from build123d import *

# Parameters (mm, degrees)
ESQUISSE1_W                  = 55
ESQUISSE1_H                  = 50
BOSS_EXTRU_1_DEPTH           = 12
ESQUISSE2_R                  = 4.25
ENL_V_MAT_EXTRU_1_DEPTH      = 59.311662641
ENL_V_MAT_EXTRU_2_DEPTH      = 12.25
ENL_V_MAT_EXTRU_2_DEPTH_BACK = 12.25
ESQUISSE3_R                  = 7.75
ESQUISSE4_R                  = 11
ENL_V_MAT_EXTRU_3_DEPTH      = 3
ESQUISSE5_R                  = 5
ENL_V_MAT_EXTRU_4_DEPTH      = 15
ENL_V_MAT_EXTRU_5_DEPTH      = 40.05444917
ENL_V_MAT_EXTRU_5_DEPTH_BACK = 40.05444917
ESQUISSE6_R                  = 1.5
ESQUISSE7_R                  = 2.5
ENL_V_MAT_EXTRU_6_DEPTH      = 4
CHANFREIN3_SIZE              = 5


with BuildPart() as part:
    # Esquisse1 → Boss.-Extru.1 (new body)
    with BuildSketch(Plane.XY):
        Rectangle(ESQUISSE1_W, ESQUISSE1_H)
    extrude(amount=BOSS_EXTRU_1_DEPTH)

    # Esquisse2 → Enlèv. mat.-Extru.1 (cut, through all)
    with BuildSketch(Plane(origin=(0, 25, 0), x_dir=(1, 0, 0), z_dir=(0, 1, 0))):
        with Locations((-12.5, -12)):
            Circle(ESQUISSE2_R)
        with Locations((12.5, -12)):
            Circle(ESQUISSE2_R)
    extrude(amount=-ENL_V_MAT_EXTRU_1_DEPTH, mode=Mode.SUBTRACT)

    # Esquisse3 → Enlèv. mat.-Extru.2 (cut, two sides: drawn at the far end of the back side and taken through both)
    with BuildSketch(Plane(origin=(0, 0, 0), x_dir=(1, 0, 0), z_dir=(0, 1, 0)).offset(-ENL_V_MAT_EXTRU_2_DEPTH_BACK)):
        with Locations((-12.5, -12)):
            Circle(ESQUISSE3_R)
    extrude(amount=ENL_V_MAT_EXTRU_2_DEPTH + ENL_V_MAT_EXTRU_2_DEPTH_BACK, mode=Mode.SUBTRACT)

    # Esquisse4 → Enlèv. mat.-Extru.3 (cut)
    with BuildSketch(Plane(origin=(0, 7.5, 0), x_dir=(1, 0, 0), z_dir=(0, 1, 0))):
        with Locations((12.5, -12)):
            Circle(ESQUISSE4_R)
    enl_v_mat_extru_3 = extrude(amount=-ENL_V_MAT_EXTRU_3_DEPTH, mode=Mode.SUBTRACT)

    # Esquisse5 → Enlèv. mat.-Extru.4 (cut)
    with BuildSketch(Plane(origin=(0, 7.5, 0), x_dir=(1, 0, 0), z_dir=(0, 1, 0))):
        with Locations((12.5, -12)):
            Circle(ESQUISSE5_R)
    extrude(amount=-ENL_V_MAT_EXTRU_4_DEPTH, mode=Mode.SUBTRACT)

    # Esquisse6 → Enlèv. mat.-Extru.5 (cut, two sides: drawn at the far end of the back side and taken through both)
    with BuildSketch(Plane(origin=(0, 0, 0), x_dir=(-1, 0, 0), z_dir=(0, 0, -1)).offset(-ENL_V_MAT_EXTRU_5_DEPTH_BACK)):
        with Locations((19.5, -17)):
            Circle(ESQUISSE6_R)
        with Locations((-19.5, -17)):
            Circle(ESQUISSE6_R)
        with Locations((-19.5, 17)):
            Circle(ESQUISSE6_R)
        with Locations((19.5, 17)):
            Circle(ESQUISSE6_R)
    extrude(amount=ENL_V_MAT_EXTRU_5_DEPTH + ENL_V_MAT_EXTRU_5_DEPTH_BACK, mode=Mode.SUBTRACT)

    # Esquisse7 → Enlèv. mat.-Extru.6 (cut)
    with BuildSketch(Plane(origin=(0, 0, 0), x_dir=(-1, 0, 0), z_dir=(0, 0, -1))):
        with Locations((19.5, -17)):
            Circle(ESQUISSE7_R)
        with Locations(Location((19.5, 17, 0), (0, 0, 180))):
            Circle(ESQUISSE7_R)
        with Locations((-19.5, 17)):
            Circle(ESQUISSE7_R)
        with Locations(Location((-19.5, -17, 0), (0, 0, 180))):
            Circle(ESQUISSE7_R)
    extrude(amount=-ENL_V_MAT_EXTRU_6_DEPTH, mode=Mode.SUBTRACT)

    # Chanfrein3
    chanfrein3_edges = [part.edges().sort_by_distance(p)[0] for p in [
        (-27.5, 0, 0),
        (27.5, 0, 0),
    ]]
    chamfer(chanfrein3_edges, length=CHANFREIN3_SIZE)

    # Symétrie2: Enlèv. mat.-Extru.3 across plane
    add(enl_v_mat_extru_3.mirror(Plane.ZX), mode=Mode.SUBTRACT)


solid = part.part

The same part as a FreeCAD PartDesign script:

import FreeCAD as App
import Part
import Sketcher
from FreeCAD import Vector
Q = App.Units.Quantity


def edges_at(feature, points):
    """Names of the edges that pass closest to the given points."""
    edges = feature.Shape.Edges
    near = lambda p: min(range(len(edges)), key=lambda i: edges[i].distToShape(Part.Vertex(*p))[0])
    return sorted({f"Edge{near(p) + 1}" for p in points})

doc = App.newDocument("Part")
params = doc.addObject("Spreadsheet::Sheet", "Params")
for row, (alias, value) in enumerate([
    ("sketch1_width", "55 mm"),
    ("sketch1_height", "50 mm"),
    ("pad1_length", "12 mm"),
    ("sketch2_diameter", "8.5 mm"),
    ("sketch3_diameter", "15.5 mm"),
    ("pocket2_length", "12.25 mm"),
    ("pocket2_length2", "12.25 mm"),
    ("sketch4_diameter", "22 mm"),
    ("pocket3_length", "3 mm"),
    ("sketch5_diameter", "10 mm"),
    ("pocket4_length", "15 mm"),
    ("sketch6_diameter", "3 mm"),
    ("sketch7_diameter", "5 mm"),
    ("pocket6_length", "4 mm"),
    ("chamfer_size", "5 mm"),
], start=1):
    params.set(f"A{row}", alias)
    params.set(f"B{row}", "=" + value)
    params.setAlias(f"B{row}", alias)

body = doc.addObject("PartDesign::Body", "Body")

# Sketch on XY plane
sketch1 = body.newObject("Sketcher::SketchObject", "Sketch")
sketch1.AttachmentSupport = (doc.getObject("XY_Plane"), [""])
sketch1.MapMode = "FlatFace"
sketch1.addGeometry(Part.LineSegment(Vector(-28, 25, 0), Vector(-28, -25, 0)), False)
sketch1.addGeometry(Part.LineSegment(Vector(-28, -25, 0), Vector(28, -25, 0)), False)
sketch1.addGeometry(Part.LineSegment(Vector(28, -25, 0), Vector(28, 25, 0)), False)
sketch1.addGeometry(Part.LineSegment(Vector(28, 25, 0), Vector(-28, 25, 0)), False)
sketch1.addConstraint(Sketcher.Constraint("Coincident", 0, 2, 1, 1))
sketch1.addConstraint(Sketcher.Constraint("Coincident", 1, 2, 2, 1))
sketch1.addConstraint(Sketcher.Constraint("Coincident", 2, 2, 3, 1))
sketch1.addConstraint(Sketcher.Constraint("Coincident", 3, 2, 0, 1))
sketch1.addConstraint(Sketcher.Constraint("Vertical", 0))
sketch1.addConstraint(Sketcher.Constraint("Horizontal", 1))
sketch1.addConstraint(Sketcher.Constraint("Vertical", 2))
sketch1.addConstraint(Sketcher.Constraint("Horizontal", 3))
sketch1.addConstraint(Sketcher.Constraint("Symmetric", 0, 2, 2, 2, -1, 1))
sketch1.addConstraint(Sketcher.Constraint("DistanceX", 1, 1, 1, 2, Q("55 mm")))
sketch1.addConstraint(Sketcher.Constraint("DistanceY", 0, 2, 0, 1, Q("50 mm")))
sketch1.setExpression("Constraints[9]", "Params.sketch1_width")
sketch1.setExpression("Constraints[10]", "Params.sketch1_height")
pad1 = body.newObject("PartDesign::Pad", "Pad")
pad1.Profile = sketch1
pad1.setExpression("Length", "Params.pad1_length")

# Sketch on XZ plane
sketch2 = body.newObject("Sketcher::SketchObject", "Sketch001")
sketch2.AttachmentSupport = (doc.getObject("XZ_Plane"), [""])
sketch2.MapMode = "FlatFace"
sketch2.AttachmentOffset = App.Placement(Vector(0, 0, -25), App.Rotation())
sketch2.addGeometry(Part.Circle(Vector(-12.5, 12, 0), Vector(0, 0, 1), 4.2), False)
sketch2.addGeometry(Part.Circle(Vector(12.5, 12, 0), Vector(0, 0, 1), 4.2), False)
sketch2.addConstraint(Sketcher.Constraint("Equal", 0, 1))
sketch2.addConstraint(Sketcher.Constraint("Symmetric", 0, 3, 1, 3, -2))
sketch2.addConstraint(Sketcher.Constraint("Diameter", 0, Q("8.5 mm")))
sketch2.addConstraint(Sketcher.Constraint("DistanceY", -1, 1, 0, 3, Q("12 mm")))
sketch2.addConstraint(Sketcher.Constraint("DistanceX", 0, 3, 1, 3, Q("25 mm")))
sketch2.setExpression("Constraints[2]", "Params.sketch2_diameter")
pocket1 = body.newObject("PartDesign::Pocket", "Pocket")
pocket1.Profile = sketch2
pocket1.Type = "ThroughAll"
pocket1.Reversed = True

# Sketch on XZ plane
sketch3 = body.newObject("Sketcher::SketchObject", "Sketch002")
sketch3.AttachmentSupport = (doc.getObject("XZ_Plane"), [""])
sketch3.MapMode = "FlatFace"
sketch3.addGeometry(Part.Circle(Vector(-12, 12, 0), Vector(0, 0, 1), 8), False)
sketch3.addConstraint(Sketcher.Constraint("Diameter", 0, Q("15.5 mm")))
sketch3.addConstraint(Sketcher.Constraint("DistanceY", -1, 1, 0, 3, Q("12 mm")))
sketch3.addConstraint(Sketcher.Constraint("DistanceX", 0, 3, -1, 1, Q("12.5 mm")))
sketch3.setExpression("Constraints[0]", "Params.sketch3_diameter")
pocket2 = body.newObject("PartDesign::Pocket", "Pocket001")
pocket2.Profile = sketch3
pocket2.Type = "TwoLengths"
pocket2.setExpression("Length", "Params.pocket2_length")
pocket2.setExpression("Length2", "Params.pocket2_length2")

# Sketch on XZ plane
sketch4 = body.newObject("Sketcher::SketchObject", "Sketch003")
sketch4.AttachmentSupport = (doc.getObject("XZ_Plane"), [""])
sketch4.MapMode = "FlatFace"
sketch4.AttachmentOffset = App.Placement(Vector(0, 0, -7.5), App.Rotation())
sketch4.addGeometry(Part.Circle(Vector(12, 12, 0), Vector(0, 0, 1), 11), False)
sketch4.addConstraint(Sketcher.Constraint("Diameter", 0, Q("22 mm")))
sketch4.addConstraint(Sketcher.Constraint("DistanceY", -1, 1, 0, 3, Q("12 mm")))
sketch4.addConstraint(Sketcher.Constraint("DistanceX", -1, 1, 0, 3, Q("12.5 mm")))
sketch4.setExpression("Constraints[0]", "Params.sketch4_diameter")
pocket3 = body.newObject("PartDesign::Pocket", "Pocket002")
pocket3.Profile = sketch4
pocket3.setExpression("Length", "Params.pocket3_length")
pocket3.Reversed = True

# Sketch on XZ plane
sketch5 = body.newObject("Sketcher::SketchObject", "Sketch004")
sketch5.AttachmentSupport = (doc.getObject("XZ_Plane"), [""])
sketch5.MapMode = "FlatFace"
sketch5.AttachmentOffset = App.Placement(Vector(0, 0, -7.5), App.Rotation())
sketch5.addGeometry(Part.Circle(Vector(12, 12, 0), Vector(0, 0, 1), 5), False)
sketch5.addConstraint(Sketcher.Constraint("Diameter", 0, Q("10 mm")))
sketch5.addConstraint(Sketcher.Constraint("DistanceY", -1, 1, 0, 3, Q("12 mm")))
sketch5.addConstraint(Sketcher.Constraint("DistanceX", -1, 1, 0, 3, Q("12.5 mm")))
sketch5.setExpression("Constraints[0]", "Params.sketch5_diameter")
pocket4 = body.newObject("PartDesign::Pocket", "Pocket003")
pocket4.Profile = sketch5
pocket4.setExpression("Length", "Params.pocket4_length")
pocket4.Reversed = True

# Sketch on XY plane
sketch6 = body.newObject("Sketcher::SketchObject", "Sketch005")
sketch6.AttachmentSupport = (doc.getObject("XY_Plane"), [""])
sketch6.MapMode = "FlatFace"
sketch6.addGeometry(Part.Circle(Vector(-19.5, -17, 0), Vector(0, 0, 1), 1.5), False)
sketch6.addGeometry(Part.Circle(Vector(19.5, -17, 0), Vector(0, 0, 1), 1.5), False)
sketch6.addGeometry(Part.Circle(Vector(19.5, 17, 0), Vector(0, 0, 1), 1.5), False)
sketch6.addGeometry(Part.Circle(Vector(-19.5, 17, 0), Vector(0, 0, 1), 1.5), False)
sketch6.addConstraint(Sketcher.Constraint("Equal", 0, 1))
sketch6.addConstraint(Sketcher.Constraint("Equal", 1, 2))
sketch6.addConstraint(Sketcher.Constraint("Equal", 2, 3))
sketch6.addConstraint(Sketcher.Constraint("Symmetric", 0, 3, 2, 3, -1, 1))
sketch6.addConstraint(Sketcher.Constraint("Symmetric", 1, 3, 3, 3, -1, 1))
sketch6.addConstraint(Sketcher.Constraint("Symmetric", 0, 3, 1, 3, -2))
sketch6.addConstraint(Sketcher.Constraint("Diameter", 0, Q("3 mm")))
sketch6.addConstraint(Sketcher.Constraint("DistanceY", 0, 3, -1, 1, Q("17 mm")))
sketch6.addConstraint(Sketcher.Constraint("DistanceX", 0, 3, 1, 3, Q("39 mm")))
sketch6.setExpression("Constraints[6]", "Params.sketch6_diameter")
pocket5 = body.newObject("PartDesign::Pocket", "Pocket004")
pocket5.Profile = sketch6
pocket5.Type = "ThroughAll"
pocket5.Midplane = True

# Sketch on XY plane
sketch7 = body.newObject("Sketcher::SketchObject", "Sketch006")
sketch7.AttachmentSupport = (doc.getObject("XY_Plane"), [""])
sketch7.MapMode = "FlatFace"
sketch7.addGeometry(Part.Circle(Vector(-19.5, -17, 0), Vector(0, 0, 1), 2.5), False)
sketch7.addGeometry(Part.Circle(Vector(-19.5, 17, 0), Vector(0, 0, 1), 2.5), False)
sketch7.addGeometry(Part.Circle(Vector(19.5, 17, 0), Vector(0, 0, 1), 2.5), False)
sketch7.addGeometry(Part.Circle(Vector(19.5, -17, 0), Vector(0, 0, 1), 2.5), False)
sketch7.addConstraint(Sketcher.Constraint("Equal", 0, 1))
sketch7.addConstraint(Sketcher.Constraint("Equal", 1, 2))
sketch7.addConstraint(Sketcher.Constraint("Equal", 2, 3))
sketch7.addConstraint(Sketcher.Constraint("Symmetric", 0, 3, 2, 3, -1, 1))
sketch7.addConstraint(Sketcher.Constraint("Symmetric", 1, 3, 3, 3, -1, 1))
sketch7.addConstraint(Sketcher.Constraint("Symmetric", 1, 3, 2, 3, -2))
sketch7.addConstraint(Sketcher.Constraint("Diameter", 0, Q("5 mm")))
sketch7.addConstraint(Sketcher.Constraint("DistanceY", 0, 3, -1, 1, Q("17 mm")))
sketch7.addConstraint(Sketcher.Constraint("DistanceX", 1, 3, 2, 3, Q("39 mm")))
sketch7.setExpression("Constraints[6]", "Params.sketch7_diameter")
pocket6 = body.newObject("PartDesign::Pocket", "Pocket005")
pocket6.Profile = sketch7
pocket6.setExpression("Length", "Params.pocket6_length")
pocket6.Reversed = True
doc.recompute()

chamfer = body.newObject("PartDesign::Chamfer", "Chamfer")
chamfer.Base = (pocket6, edges_at(pocket6, [(-27.5, 0, 0), (27.5, 0, 0)]))
chamfer.setExpression("Size", "Params.chamfer_size")
doc.recompute()

mirrored = body.newObject("PartDesign::Mirrored", "Mirrored")
mirrored.Originals = [pocket3]
mirrored.MirrorPlane = (doc.getObject("XZ_Plane"), [""])
body.Tip = mirrored

doc.recompute()
